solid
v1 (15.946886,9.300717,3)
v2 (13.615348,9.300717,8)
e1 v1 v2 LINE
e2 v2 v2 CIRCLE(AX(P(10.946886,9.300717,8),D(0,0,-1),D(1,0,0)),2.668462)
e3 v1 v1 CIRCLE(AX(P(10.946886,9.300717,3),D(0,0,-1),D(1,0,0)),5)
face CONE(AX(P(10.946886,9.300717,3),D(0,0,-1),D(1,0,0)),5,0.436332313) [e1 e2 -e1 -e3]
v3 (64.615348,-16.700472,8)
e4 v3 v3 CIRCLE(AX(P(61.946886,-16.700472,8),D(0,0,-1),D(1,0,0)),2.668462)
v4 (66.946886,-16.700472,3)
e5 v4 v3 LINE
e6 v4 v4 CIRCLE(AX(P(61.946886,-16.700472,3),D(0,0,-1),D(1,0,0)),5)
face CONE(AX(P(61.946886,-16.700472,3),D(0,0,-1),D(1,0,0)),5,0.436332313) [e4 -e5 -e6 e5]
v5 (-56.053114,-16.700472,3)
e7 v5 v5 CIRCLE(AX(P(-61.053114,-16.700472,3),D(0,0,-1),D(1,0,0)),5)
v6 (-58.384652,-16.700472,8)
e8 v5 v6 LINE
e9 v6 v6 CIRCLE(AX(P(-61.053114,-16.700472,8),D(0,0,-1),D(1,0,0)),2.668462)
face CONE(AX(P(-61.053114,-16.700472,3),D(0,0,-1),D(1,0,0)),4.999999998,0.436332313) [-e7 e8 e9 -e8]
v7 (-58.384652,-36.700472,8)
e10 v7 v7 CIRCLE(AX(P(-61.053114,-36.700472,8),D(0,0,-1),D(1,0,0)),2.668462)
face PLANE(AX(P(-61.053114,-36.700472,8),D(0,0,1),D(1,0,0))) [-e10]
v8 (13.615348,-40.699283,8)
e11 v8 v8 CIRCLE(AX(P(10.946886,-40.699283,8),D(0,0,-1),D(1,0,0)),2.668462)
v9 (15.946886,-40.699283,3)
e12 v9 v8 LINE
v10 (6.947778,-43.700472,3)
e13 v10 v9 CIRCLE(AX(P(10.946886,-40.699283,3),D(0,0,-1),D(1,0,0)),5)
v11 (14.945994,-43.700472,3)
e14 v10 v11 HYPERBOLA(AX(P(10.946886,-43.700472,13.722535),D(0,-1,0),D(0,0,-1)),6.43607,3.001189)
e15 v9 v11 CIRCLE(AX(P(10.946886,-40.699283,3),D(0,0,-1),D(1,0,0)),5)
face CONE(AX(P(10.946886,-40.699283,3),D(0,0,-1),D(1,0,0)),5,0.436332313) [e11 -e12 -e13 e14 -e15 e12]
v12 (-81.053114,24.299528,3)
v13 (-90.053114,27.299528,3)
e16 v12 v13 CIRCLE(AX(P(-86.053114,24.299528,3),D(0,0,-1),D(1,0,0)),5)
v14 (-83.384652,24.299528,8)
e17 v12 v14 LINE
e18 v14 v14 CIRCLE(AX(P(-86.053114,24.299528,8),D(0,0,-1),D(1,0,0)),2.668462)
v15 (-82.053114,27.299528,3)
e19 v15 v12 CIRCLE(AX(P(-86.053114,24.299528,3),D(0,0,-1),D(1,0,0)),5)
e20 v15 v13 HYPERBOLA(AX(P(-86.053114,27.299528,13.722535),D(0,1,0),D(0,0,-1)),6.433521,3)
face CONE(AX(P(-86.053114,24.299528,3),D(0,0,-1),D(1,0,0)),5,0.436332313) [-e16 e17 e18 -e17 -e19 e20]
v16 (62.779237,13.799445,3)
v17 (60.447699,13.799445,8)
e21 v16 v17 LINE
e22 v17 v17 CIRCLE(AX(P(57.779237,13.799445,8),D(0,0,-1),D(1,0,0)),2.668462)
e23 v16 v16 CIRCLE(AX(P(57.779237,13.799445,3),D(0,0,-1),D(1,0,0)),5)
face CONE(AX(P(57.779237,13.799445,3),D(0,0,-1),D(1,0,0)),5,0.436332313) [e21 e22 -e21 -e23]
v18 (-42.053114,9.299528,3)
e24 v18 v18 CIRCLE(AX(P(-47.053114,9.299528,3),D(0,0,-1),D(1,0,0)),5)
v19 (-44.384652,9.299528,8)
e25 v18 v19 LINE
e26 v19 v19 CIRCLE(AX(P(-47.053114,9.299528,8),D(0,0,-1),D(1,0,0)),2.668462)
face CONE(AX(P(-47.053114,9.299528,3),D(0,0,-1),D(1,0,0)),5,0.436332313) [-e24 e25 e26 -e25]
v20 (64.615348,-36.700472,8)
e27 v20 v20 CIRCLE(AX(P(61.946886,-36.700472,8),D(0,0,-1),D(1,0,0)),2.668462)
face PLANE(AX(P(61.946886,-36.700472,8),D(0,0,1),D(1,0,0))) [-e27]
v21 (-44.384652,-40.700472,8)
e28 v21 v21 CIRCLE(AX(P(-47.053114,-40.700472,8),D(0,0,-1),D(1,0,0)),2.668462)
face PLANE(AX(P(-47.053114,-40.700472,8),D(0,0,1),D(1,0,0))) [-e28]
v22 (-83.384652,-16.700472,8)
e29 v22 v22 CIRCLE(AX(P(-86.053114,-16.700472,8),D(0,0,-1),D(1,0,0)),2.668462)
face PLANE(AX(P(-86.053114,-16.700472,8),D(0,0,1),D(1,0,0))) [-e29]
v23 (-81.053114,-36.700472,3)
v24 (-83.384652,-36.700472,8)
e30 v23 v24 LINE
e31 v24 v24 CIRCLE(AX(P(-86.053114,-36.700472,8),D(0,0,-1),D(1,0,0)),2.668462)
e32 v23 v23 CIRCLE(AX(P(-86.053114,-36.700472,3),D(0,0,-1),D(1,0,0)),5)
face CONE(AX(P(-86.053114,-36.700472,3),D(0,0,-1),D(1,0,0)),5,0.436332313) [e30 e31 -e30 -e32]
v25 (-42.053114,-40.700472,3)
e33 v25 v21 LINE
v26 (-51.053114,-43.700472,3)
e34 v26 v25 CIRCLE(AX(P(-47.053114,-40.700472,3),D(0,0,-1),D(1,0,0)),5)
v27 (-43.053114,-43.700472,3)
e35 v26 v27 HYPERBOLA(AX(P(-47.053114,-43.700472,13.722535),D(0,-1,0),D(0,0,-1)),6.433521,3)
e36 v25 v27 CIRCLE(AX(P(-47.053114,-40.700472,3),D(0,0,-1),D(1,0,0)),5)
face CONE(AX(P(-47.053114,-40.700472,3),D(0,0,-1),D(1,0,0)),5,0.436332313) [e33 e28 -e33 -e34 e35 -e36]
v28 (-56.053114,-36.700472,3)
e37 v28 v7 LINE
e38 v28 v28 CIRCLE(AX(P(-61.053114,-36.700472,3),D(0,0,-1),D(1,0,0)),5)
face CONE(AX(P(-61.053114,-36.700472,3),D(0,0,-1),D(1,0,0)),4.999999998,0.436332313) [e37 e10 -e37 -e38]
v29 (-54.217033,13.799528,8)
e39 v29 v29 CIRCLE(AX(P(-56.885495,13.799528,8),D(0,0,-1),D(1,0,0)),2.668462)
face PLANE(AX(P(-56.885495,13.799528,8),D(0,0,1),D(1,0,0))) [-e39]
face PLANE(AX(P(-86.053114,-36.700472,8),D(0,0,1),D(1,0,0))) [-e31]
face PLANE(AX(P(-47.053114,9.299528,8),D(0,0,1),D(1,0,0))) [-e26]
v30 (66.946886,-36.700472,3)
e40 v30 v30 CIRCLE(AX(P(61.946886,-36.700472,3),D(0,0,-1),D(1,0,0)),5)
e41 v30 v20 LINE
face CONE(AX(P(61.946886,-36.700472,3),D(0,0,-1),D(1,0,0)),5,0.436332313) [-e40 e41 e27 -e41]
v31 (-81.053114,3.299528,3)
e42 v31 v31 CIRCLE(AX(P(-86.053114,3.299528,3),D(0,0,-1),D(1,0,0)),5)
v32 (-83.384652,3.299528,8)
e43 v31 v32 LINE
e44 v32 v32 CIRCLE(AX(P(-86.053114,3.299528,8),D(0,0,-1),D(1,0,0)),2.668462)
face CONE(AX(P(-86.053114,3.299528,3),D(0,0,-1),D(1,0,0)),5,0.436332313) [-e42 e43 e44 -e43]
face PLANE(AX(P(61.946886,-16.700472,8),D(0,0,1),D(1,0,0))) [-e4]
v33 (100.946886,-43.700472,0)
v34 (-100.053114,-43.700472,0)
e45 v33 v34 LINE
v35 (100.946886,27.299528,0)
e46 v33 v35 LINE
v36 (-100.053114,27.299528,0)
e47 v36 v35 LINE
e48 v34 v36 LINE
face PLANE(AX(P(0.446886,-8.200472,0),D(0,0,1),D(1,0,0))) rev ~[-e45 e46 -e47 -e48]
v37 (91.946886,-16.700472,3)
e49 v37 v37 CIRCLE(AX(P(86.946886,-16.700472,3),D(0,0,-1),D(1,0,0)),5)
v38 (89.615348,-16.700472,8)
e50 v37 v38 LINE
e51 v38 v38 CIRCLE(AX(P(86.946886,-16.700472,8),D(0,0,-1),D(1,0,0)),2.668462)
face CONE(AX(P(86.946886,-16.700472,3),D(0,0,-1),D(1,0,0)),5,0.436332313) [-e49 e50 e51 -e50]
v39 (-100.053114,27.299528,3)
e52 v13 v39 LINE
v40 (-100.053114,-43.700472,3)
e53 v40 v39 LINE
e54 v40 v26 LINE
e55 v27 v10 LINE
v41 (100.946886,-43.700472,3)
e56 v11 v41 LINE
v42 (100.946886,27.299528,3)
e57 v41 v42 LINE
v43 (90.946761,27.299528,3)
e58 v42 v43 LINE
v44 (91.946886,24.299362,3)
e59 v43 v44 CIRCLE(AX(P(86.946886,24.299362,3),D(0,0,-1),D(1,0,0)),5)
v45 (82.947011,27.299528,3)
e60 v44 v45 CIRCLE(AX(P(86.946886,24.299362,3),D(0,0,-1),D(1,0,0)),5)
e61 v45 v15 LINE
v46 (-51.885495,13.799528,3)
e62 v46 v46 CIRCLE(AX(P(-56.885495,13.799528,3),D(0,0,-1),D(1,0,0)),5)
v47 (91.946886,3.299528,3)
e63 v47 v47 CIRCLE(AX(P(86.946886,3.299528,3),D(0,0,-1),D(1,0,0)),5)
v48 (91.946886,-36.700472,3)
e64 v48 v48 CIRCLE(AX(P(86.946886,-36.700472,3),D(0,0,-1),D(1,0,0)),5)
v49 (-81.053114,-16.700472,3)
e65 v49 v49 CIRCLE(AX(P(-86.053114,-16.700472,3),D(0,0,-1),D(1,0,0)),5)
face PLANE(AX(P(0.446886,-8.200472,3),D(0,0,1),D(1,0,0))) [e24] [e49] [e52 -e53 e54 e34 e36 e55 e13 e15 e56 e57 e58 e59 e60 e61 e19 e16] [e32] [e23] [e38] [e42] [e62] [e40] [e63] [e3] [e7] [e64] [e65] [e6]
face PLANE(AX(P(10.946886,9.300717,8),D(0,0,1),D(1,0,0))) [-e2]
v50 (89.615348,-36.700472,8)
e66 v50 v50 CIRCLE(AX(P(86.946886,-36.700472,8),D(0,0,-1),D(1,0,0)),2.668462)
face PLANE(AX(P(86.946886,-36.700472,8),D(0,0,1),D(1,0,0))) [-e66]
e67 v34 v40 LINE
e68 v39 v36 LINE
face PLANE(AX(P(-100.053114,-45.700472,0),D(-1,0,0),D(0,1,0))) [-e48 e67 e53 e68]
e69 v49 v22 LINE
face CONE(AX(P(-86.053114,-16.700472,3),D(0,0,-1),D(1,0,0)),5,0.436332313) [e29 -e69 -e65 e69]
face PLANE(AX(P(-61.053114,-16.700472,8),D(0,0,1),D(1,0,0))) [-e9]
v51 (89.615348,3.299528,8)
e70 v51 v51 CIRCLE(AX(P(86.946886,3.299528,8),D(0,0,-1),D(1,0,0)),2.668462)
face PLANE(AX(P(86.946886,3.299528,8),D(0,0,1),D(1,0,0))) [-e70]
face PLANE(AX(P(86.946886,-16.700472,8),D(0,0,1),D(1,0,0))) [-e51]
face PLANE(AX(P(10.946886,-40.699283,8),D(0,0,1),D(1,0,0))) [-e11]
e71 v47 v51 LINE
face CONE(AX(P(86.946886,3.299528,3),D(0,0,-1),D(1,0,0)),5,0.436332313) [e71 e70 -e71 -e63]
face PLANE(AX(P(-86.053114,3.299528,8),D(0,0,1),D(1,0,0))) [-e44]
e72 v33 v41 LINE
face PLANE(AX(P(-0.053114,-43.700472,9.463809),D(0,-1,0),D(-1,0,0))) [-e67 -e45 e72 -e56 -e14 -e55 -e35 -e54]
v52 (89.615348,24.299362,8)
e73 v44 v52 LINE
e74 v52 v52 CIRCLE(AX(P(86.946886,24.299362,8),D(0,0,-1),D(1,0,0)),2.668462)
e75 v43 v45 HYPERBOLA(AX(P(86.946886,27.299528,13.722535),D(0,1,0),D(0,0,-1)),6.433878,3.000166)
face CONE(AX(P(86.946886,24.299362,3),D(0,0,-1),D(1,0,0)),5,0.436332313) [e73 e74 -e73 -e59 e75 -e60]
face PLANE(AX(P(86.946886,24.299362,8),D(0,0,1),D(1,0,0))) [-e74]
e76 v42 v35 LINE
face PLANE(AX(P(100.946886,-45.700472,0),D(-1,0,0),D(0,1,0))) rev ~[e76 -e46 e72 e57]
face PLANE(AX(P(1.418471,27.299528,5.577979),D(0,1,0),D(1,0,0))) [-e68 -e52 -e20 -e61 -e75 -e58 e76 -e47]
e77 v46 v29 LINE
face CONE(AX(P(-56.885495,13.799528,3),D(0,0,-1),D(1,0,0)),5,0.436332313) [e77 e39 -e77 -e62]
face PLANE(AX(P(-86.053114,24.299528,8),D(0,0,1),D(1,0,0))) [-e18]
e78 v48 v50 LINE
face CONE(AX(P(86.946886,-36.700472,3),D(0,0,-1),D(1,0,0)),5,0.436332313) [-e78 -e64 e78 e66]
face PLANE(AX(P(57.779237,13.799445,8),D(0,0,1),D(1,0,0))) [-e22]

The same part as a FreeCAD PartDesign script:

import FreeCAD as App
import Part
import Sketcher

V = App.Vector

doc = App.newDocument("Part")
body = doc.addObject("PartDesign::Body", "Body")

sketch1 = doc.addObject("Sketcher::SketchObject", "Sketch")
body.addObject(sketch1)
sketch1.AttachmentSupport = (doc.XY_Plane, [""])
sketch1.MapMode = "FlatFace"
sketch1.addGeometry(Part.LineSegment(V(-100.053114, 29.299528, 0), V(-100.053114, -45.700472, 0)), False)
sketch1.addGeometry(Part.LineSegment(V(-100.053114, -45.700472, 0), V(100.946886, -45.700472, 0)), False)
sketch1.addGeometry(Part.LineSegment(V(100.946886, -45.700472, 0), V(100.946886, 29.299528, 0)), False)
sketch1.addGeometry(Part.LineSegment(V(100.946886, 29.299528, 0), V(-100.053114, 29.299528, 0)), False)
sketch1.addConstraint(Sketcher.Constraint("Coincident", 0, 2, 1, 1))
sketch1.addConstraint(Sketcher.Constraint("Coincident", 1, 2, 2, 1))
sketch1.addConstraint(Sketcher.Constraint("Coincident", 2, 2, 3, 1))
sketch1.addConstraint(Sketcher.Constraint("Coincident", 3, 2, 0, 1))
sketch1.addConstraint(Sketcher.Constraint("Vertical", 0))
sketch1.addConstraint(Sketcher.Constraint("Horizontal", 1))
sketch1.addConstraint(Sketcher.Constraint("Vertical", 2))
sketch1.addConstraint(Sketcher.Constraint("Horizontal", 3))
sketch1.addConstraint(Sketcher.Constraint("DistanceX", 1, 1, 1, 2, 201.0))
sketch1.addConstraint(Sketcher.Constraint("DistanceY", 0, 2, 0, 1, 75.0))
sketch1.addConstraint(Sketcher.Constraint("DistanceY", 0, 2, -1, 1, 45.700472))
sketch1.addConstraint(Sketcher.Constraint("DistanceX", 0, 2, -1, 1, 100.053114))
pad1 = doc.addObject("PartDesign::Pad", "Pad")
body.addObject(pad1)
pad1.Profile = sketch1
pad1.Length = 3

sketch2 = doc.addObject("Sketcher::SketchObject", "Sketch001")
body.addObject(sketch2)
sketch2.AttachmentSupport = (doc.XY_Plane, [""])
sketch2.MapMode = "FlatFace"
sketch2.AttachmentOffset = App.Placement(V(0, 0, 3), App.Rotation())
sketch2.addGeometry(Part.Circle(V(-47.053114, 9.299528, 0), V(0, 0, 1), 5), False)
sketch2.addGeometry(Part.Circle(V(-47.053114, -40.700472, 0), V(0, 0, 1), 5), False)
sketch2.addGeometry(Part.Circle(V(10.946886, 9.300717, 0), V(0, 0, 1), 5), False)
sketch2.addGeometry(Part.Circle(V(10.946886, -40.699283, 0), V(0, 0, 1), 5), False)
sketch2.addGeometry(Part.Circle(V(-86.053114, 24.299528, 0), V(0, 0, 1), 5), False)
sketch2.addGeometry(Part.Circle(V(-56.885495, 13.799528, 0), V(0, 0, 1), 5), False)
sketch2.addGeometry(Part.Circle(V(-86.053114, 3.299528, 0), V(0, 0, 1), 5), False)
sketch2.addGeometry(Part.Circle(V(-86.053114, -16.700472, 0), V(0, 0, 1), 5), False)
sketch2.addGeometry(Part.Circle(V(-86.053114, -36.700472, 0), V(0, 0, 1), 5), False)
sketch2.addGeometry(Part.Circle(V(-61.053114, -16.700472, 0), V(0, 0, 1), 5), False)
sketch2.addGeometry(Part.Circle(V(-61.053114, -36.700472, 0), V(0, 0, 1), 5), False)
sketch2.addGeometry(Part.Circle(V(86.946886, 24.299362, 0), V(0, 0, 1), 5), False)
sketch2.addGeometry(Part.Circle(V(86.946886, 3.299528, 0), V(0, 0, 1), 5), False)
sketch2.addGeometry(Part.Circle(V(57.779237, 13.799445, 0), V(0, 0, 1), 5), False)
sketch2.addGeometry(Part.Circle(V(86.946886, -16.700472, 0), V(0, 0, 1), 5), False)
sketch2.addGeometry(Part.Circle(V(86.946886, -36.700472, 0), V(0, 0, 1), 5), False)
sketch2.addGeometry(Part.Circle(V(61.946886, -36.700472, 0), V(0, 0, 1), 5), False)
sketch2.addGeometry(Part.Circle(V(61.946886, -16.700472, 0), V(0, 0, 1), 5), False)
sketch2.addConstraint(Sketcher.Constraint("Equal", 0, 1))
sketch2.addConstraint(Sketcher.Constraint("Equal", 1, 2))
sketch2.addConstraint(Sketcher.Constraint("Equal", 2, 3))
sketch2.addConstraint(Sketcher.Constraint("Equal", 3, 4))
sketch2.addConstraint(Sketcher.Constraint("Equal", 4, 5))
sketch2.addConstraint(Sketcher.Constraint("Equal", 5, 6))
sketch2.addConstraint(Sketcher.Constraint("Equal", 6, 7))
sketch2.addConstraint(Sketcher.Constraint("Equal", 7, 8))
sketch2.addConstraint(Sketcher.Constraint("Equal", 8, 9))
sketch2.addConstraint(Sketcher.Constraint("Equal", 9, 10))
sketch2.addConstraint(Sketcher.Constraint("Equal", 10, 11))
sketch2.addConstraint(Sketcher.Constraint("Equal", 11, 12))
sketch2.addConstraint(Sketcher.Constraint("Equal", 12, 13))
sketch2.addConstraint(Sketcher.Constraint("Equal", 13, 14))
sketch2.addConstraint(Sketcher.Constraint("Equal", 14, 15))
sketch2.addConstraint(Sketcher.Constraint("Equal", 15, 16))
sketch2.addConstraint(Sketcher.Constraint("Equal", 16, 17))
sketch2.addConstraint(Sketcher.Constraint("Horizontal", 7, 3, 9, 3))
sketch2.addConstraint(Sketcher.Constraint("Horizontal", 8, 3, 10, 3))
sketch2.addConstraint(Sketcher.Constraint("Horizontal", 6, 3, 12, 3))
sketch2.addConstraint(Sketcher.Constraint("Horizontal", 9, 3, 14, 3))
sketch2.addConstraint(Sketcher.Constraint("Horizontal", 10, 3, 15, 3))
sketch2.addConstraint(Sketcher.Constraint("Horizontal", 15, 3, 16, 3))
sketch2.addConstraint(Sketcher.Constraint("Horizontal", 14, 3, 17, 3))
sketch2.addConstraint(Sketcher.Constraint("Vertical", 0, 3, 1, 3))
sketch2.addConstraint(Sketcher.Constraint("Vertical", 2, 3, 3, 3))
sketch2.addConstraint(Sketcher.Constraint("Vertical", 4, 3, 6, 3))
sketch2.addConstraint(Sketcher.Constraint("Vertical", 6, 3, 7, 3))
sketch2.addConstraint(Sketcher.Constraint("Vertical", 7, 3, 8, 3))
sketch2.addConstraint(Sketcher.Constraint("Vertical", 9, 3, 10, 3))
sketch2.addConstraint(Sketcher.Constraint("Vertical", 11, 3, 12, 3))
sketch2.addConstraint(Sketcher.Constraint("Vertical", 12, 3, 14, 3))
sketch2.addConstraint(Sketcher.Constraint("Vertical", 14, 3, 15, 3))
sketch2.addConstraint(Sketcher.Constraint("Vertical", 16, 3, 17, 3))
sketch2.addConstraint(Sketcher.Constraint("Diameter", 0, 10.0))
sketch2.addConstraint(Sketcher.Constraint("DistanceY", 1, 3, 0, 3, 50.0))
sketch2.addConstraint(Sketcher.Constraint("DistanceX", 0, 3, 2, 3, 58.0))
sketch2.addConstraint(Sketcher.Constraint("DistanceY", 3, 3, 2, 3, 50.0))
sketch2.addConstraint(Sketcher.Constraint("DistanceX", 4, 3, 0, 3, 39.0))
sketch2.addConstraint(Sketcher.Constraint("DistanceY", 0, 3, 4, 3, 15.0))
sketch2.addConstraint(Sketcher.Constraint("DistanceY", 6, 3, 4, 3, 21.0))
sketch2.addConstraint(Sketcher.Constraint("DistanceY", 7, 3, 6, 3, 20.0))
sketch2.addConstraint(Sketcher.Constraint("DistanceY", 8, 3, 7, 3, 20.0))
sketch2.addConstraint(Sketcher.Constraint("DistanceX", 7, 3, 9, 3, 25.0))
sketch2.addConstraint(Sketcher.Constraint("DistanceX", 2, 3, 11, 3, 76.0))
sketch2.addConstraint(Sketcher.Constraint("DistanceX", 16, 3, 15, 3, 25.0))
sketch2.addConstraint(Sketcher.Constraint("DistanceY", 0, 3, 5, 3, 4.5))
sketch2.addConstraint(Sketcher.Constraint("DistanceY", -1, 1, 0, 3, 9.299528))
sketch2.addConstraint(Sketcher.Constraint("DistanceY", -1, 1, 11, 3, 24.299362))
sketch2.addConstraint(Sketcher.Constraint("DistanceY", 0, 3, 2, 3, 0.001189))
sketch2.addConstraint(Sketcher.Constraint("DistanceX", 5, 3, 0, 3, 9.832381))
sketch2.addConstraint(Sketcher.Constraint("DistanceX", 13, 3, 11, 3, 29.167649))
sketch2.addConstraint(Sketcher.Constraint("DistanceY", 2, 3, 13, 3, 4.498728))
sketch2.addConstraint(Sketcher.Constraint("DistanceX", 0, 3, -1, 1, 47.053114))
pad2 = doc.addObject("PartDesign::Pad", "Pad001")
body.addObject(pad2)
pad2.Profile = sketch2
pad2.Length = 5
pad2.TaperAngle = -25

sketch3 = doc.addObject("Sketcher::SketchObject", "Sketch002")
body.addObject(sketch3)
sketch3.AttachmentSupport = (doc.XZ_Plane, [""])
sketch3.MapMode = "FlatFace"
sketch3.AttachmentOffset = App.Placement(V(0, 0, -29.299528), App.Rotation())
sketch3.addGeometry(Part.LineSegment(V(-103.581529, 0, 0), V(-103.581529, 11.155959, 0)), False)
sketch3.addGeometry(Part.LineSegment(V(-103.581529, 11.155959, 0), V(106.418471, 11.155959, 0)), False)
sketch3.addGeometry(Part.LineSegment(V(106.418471, 11.155959, 0), V(106.418471, 0, 0)), False)
sketch3.addGeometry(Part.LineSegment(V(106.418471, 0, 0), V(-103.581529, 0, 0)), False)
sketch3.addConstraint(Sketcher.Constraint("Coincident", 0, 2, 1, 1))
sketch3.addConstraint(Sketcher.Constraint("Coincident", 1, 2, 2, 1))
sketch3.addConstraint(Sketcher.Constraint("Coincident", 2, 2, 3, 1))
sketch3.addConstraint(Sketcher.Constraint("Coincident", 3, 2, 0, 1))
sketch3.addConstraint(Sketcher.Constraint("Vertical", 0))
sketch3.addConstraint(Sketcher.Constraint("Horizontal", 1))
sketch3.addConstraint(Sketcher.Constraint("Vertical", 2))
sketch3.addConstraint(Sketcher.Constraint("Horizontal", 3))
sketch3.addConstraint(Sketcher.Constraint("PointOnObject", 2, 2, -1))
sketch3.addConstraint(Sketcher.Constraint("DistanceX", 1, 1, 1, 2, 210.0))
sketch3.addConstraint(Sketcher.Constraint("DistanceY", 0, 1, 0, 2, 11.155959))
sketch3.addConstraint(Sketcher.Constraint("DistanceX", 0, 2, -1, 1, 103.581529))
pocket1 = doc.addObject("PartDesign::Pocket", "Pocket")
body.addObject(pocket1)
pocket1.Profile = sketch3
pocket1.Length = 2
pocket1.Reversed = True

sketch4 = doc.addObject("Sketcher::SketchObject", "Sketch003")
body.addObject(sketch4)
sketch4.AttachmentSupport = (doc.XZ_Plane, [""])
sketch4.MapMode = "FlatFace"
sketch4.AttachmentOffset = App.Placement(V(0, 0, 45.700472), App.Rotation())
sketch4.addGeometry(Part.LineSegment(V(109.946886, 0, 0), V(109.946886, 18.927619, 0)), False)
sketch4.addGeometry(Part.LineSegment(V(109.946886, 18.927619, 0), V(-110.053114, 18.927619, 0)), False)
sketch4.addGeometry(Part.LineSegment(V(-110.053114, 18.927619, 0), V(-110.053114, 0, 0)), False)
sketch4.addGeometry(Part.LineSegment(V(-110.053114, 0, 0), V(109.946886, 0, 0)), False)
sketch4.addConstraint(Sketcher.Constraint("Coincident", 0, 2, 1, 1))
sketch4.addConstraint(Sketcher.Constraint("Coincident", 1, 2, 2, 1))
sketch4.addConstraint(Sketcher.Constraint("Coincident", 2, 2, 3, 1))
sketch4.addConstraint(Sketcher.Constraint("Coincident", 3, 2, 0, 1))
sketch4.addConstraint(Sketcher.Constraint("Vertical", 0))
sketch4.addConstraint(Sketcher.Constraint("Horizontal", 1))
sketch4.addConstraint(Sketcher.Constraint("Vertical", 2))
sketch4.addConstraint(Sketcher.Constraint("Horizontal", 3))
sketch4.addConstraint(Sketcher.Constraint("PointOnObject", 2, 2, -1))
sketch4.addConstraint(Sketcher.Constraint("DistanceX", 1, 2, 1, 1, 220.0))
sketch4.addConstraint(Sketcher.Constraint("DistanceY", 0, 1, 0, 2, 18.927619))
sketch4.addConstraint(Sketcher.Constraint("DistanceX", -1, 1, 0, 2, 109.946886))
pocket2 = doc.addObject("PartDesign::Pocket", "Pocket001")
body.addObject(pocket2)
pocket2.Profile = sketch4
pocket2.Length = 2

doc.recompute()
